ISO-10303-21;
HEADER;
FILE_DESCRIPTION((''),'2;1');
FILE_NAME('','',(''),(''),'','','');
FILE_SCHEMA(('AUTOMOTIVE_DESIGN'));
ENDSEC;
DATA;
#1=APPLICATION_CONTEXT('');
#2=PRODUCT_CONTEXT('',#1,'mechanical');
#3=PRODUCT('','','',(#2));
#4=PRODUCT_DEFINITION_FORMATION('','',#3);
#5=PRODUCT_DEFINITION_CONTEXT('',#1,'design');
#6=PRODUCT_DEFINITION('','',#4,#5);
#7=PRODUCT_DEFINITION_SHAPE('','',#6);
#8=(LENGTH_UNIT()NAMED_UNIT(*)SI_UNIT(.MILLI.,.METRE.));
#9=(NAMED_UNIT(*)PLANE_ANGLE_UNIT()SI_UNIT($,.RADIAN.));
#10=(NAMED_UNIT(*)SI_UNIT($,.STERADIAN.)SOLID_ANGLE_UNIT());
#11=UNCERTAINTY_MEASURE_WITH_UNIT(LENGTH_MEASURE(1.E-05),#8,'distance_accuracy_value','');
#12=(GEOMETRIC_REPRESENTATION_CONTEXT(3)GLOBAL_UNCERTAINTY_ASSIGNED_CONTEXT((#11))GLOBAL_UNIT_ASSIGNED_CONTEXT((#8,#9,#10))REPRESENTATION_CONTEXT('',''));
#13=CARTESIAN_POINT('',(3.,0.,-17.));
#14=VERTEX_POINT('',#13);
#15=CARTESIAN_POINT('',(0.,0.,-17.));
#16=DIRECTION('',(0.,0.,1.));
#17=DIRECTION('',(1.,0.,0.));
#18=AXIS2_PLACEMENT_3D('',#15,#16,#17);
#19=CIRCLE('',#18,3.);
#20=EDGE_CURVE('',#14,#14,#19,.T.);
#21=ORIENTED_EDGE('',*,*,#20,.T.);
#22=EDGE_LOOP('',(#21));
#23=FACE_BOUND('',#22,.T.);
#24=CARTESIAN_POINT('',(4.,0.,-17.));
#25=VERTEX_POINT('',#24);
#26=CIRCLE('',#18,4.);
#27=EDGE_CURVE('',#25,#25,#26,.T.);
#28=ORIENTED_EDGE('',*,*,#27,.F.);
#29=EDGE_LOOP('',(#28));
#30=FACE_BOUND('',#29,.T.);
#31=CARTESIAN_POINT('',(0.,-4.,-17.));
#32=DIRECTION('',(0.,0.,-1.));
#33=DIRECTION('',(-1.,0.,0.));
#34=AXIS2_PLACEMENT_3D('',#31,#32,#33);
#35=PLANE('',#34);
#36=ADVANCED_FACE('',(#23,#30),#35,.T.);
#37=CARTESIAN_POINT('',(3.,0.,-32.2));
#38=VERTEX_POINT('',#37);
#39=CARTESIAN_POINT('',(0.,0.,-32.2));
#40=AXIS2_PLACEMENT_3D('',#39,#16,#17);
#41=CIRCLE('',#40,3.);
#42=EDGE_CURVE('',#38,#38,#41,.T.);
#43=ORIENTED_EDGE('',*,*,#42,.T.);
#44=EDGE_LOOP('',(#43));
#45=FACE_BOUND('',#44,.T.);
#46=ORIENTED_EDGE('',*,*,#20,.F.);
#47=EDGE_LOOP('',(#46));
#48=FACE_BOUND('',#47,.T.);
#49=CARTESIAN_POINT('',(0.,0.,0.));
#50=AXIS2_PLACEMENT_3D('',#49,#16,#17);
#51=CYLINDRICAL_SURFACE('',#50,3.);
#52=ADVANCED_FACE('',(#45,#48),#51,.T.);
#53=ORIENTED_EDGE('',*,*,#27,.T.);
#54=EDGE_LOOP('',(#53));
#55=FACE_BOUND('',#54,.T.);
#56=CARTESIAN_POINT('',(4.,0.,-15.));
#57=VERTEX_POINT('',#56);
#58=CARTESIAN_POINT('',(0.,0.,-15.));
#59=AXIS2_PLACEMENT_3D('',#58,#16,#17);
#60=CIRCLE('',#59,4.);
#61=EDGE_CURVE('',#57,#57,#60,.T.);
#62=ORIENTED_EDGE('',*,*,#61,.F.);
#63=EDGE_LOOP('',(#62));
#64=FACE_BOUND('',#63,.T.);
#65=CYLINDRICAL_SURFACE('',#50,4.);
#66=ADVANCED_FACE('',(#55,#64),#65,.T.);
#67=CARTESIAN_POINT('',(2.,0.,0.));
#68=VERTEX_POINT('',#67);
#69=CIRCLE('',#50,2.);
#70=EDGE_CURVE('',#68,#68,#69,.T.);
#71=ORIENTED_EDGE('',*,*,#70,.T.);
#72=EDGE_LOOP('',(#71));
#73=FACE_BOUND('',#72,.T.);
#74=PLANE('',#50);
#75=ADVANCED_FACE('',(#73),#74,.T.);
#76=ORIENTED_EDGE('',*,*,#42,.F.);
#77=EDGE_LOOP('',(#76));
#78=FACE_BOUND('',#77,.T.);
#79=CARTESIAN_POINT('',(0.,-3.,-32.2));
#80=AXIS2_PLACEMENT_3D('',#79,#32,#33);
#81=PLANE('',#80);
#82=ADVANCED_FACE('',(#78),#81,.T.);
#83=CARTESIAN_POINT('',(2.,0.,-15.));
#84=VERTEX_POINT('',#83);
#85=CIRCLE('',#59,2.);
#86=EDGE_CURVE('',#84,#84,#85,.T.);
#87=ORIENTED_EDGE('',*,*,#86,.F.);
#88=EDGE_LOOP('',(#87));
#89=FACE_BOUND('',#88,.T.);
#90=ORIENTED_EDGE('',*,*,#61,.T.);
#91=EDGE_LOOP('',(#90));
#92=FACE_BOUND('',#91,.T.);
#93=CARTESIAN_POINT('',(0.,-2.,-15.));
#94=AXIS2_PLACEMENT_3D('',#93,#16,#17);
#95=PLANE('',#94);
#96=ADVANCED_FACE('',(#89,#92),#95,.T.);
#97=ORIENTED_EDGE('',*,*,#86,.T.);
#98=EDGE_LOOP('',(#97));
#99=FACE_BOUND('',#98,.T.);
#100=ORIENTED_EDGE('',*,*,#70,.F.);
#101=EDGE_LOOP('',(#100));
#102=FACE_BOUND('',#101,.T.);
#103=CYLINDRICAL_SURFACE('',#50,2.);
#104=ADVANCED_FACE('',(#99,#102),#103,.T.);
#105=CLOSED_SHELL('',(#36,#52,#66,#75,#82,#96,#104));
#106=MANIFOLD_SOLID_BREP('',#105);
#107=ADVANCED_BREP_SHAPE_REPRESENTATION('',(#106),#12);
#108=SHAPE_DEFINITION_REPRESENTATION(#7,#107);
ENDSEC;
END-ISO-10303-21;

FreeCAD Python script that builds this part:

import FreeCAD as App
import Part
import Sketcher

doc = App.newDocument("Part")
body = doc.addObject("PartDesign::Body", "Body")

# Sketch on YZ plane
sketch1 = body.newObject("Sketcher::SketchObject", "Sketch")
sketch1.AttachmentSupport = (doc.getObject("YZ_Plane"), [""])
sketch1.MapMode = "FlatFace"
sketch1.addGeometry(Part.LineSegment(App.Vector(0, -32.2, 0), App.Vector(0, 0, 0)), False)
sketch1.addGeometry(Part.LineSegment(App.Vector(0, 0, 0), App.Vector(-2, 0, 0)), False)
sketch1.addGeometry(Part.LineSegment(App.Vector(-2, 0, 0), App.Vector(-2, -15, 0)), False)
sketch1.addGeometry(Part.LineSegment(App.Vector(-2, -15, 0), App.Vector(-4, -15, 0)), False)
sketch1.addGeometry(Part.LineSegment(App.Vector(-4, -15, 0), App.Vector(-4, -17, 0)), False)
sketch1.addGeometry(Part.LineSegment(App.Vector(-4, -17, 0), App.Vector(-3, -17, 0)), False)
sketch1.addGeometry(Part.LineSegment(App.Vector(-3, -17, 0), App.Vector(-3, -32.2, 0)), False)
sketch1.addGeometry(Part.LineSegment(App.Vector(-3, -32.2, 0), App.Vector(0, -32.2, 0)), False)
sketch1.addConstraint(Sketcher.Constraint("Coincident", 0, 2, 1, 1))
sketch1.addConstraint(Sketcher.Constraint("Coincident", 1, 2, 2, 1))
sketch1.addConstraint(Sketcher.Constraint("Coincident", 2, 2, 3, 1))
sketch1.addConstraint(Sketcher.Constraint("Coincident", 3, 2, 4, 1))
sketch1.addConstraint(Sketcher.Constraint("Coincident", 4, 2, 5, 1))
sketch1.addConstraint(Sketcher.Constraint("Coincident", 5, 2, 6, 1))
sketch1.addConstraint(Sketcher.Constraint("Coincident", 6, 2, 7, 1))
sketch1.addConstraint(Sketcher.Constraint("Coincident", 7, 2, 0, 1))
sketch1.addConstraint(Sketcher.Constraint("Vertical", 0))
sketch1.addConstraint(Sketcher.Constraint("Horizontal", 1))
sketch1.addConstraint(Sketcher.Constraint("Vertical", 2))
sketch1.addConstraint(Sketcher.Constraint("Horizontal", 3))
sketch1.addConstraint(Sketcher.Constraint("Vertical", 4))
sketch1.addConstraint(Sketcher.Constraint("Horizontal", 5))
sketch1.addConstraint(Sketcher.Constraint("Vertical", 6))
sketch1.addConstraint(Sketcher.Constraint("Horizontal", 7))
sketch1.addConstraint(Sketcher.Constraint("Coincident", 0, 2, -1, 1))
sketch1.addConstraint(Sketcher.Constraint("Equal", 1, 3))
sketch1.addConstraint(Sketcher.Constraint("Equal", 3, 4))
sketch1.addConstraint(Sketcher.Constraint("DistanceX", 1, 2, 1, 1, 2.0))
sketch1.addConstraint(Sketcher.Constraint("DistanceX", 5, 1, 5, 2, 1.0))
sketch1.addConstraint(Sketcher.Constraint("DistanceY", 2, 2, 2, 1, 15.0))
sketch1.addConstraint(Sketcher.Constraint("DistanceY", 0, 1, 0, 2, 32.2))
revolution = body.newObject("PartDesign::Revolution", "Revolution")
revolution.Profile = sketch1
revolution.ReferenceAxis = (sketch1, ["V_Axis"])
revolution.Angle = 360

doc.recompute()
